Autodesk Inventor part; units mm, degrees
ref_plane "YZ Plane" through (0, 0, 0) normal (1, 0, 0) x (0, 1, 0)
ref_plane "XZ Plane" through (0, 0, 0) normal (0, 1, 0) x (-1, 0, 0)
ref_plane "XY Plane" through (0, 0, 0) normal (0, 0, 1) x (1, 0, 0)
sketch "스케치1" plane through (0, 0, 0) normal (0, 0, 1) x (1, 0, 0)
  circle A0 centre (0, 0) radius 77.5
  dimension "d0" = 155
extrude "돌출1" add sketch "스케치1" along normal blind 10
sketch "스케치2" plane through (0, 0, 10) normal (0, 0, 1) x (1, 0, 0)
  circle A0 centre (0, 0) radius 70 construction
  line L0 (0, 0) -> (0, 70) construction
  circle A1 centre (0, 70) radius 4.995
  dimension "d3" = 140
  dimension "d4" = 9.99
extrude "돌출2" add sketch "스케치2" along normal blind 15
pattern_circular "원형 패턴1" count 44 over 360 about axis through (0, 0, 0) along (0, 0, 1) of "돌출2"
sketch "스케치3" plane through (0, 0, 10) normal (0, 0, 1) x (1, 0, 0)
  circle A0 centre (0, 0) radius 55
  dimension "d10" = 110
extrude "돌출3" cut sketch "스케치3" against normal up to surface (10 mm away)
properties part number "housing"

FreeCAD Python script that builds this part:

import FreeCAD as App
import Part
import Sketcher
from FreeCAD import Vector

doc = App.newDocument("Part")
body = doc.addObject("PartDesign::Body", "Body")

sketch1 = body.newObject("Sketcher::SketchObject", "Sketch")
sketch1.AttachmentSupport = (doc.getObject("XY_Plane"), [""])
sketch1.MapMode = "FlatFace"
sketch1.addGeometry(Part.Circle(Vector(0, 0, 0), Vector(0, 0, 1), 77.5), False)
sketch1.addConstraint([
    Sketcher.Constraint("Coincident", 0, 3, -1, 1),
    Sketcher.Constraint("Diameter", 0, 155.0),
])
pad1 = body.newObject("PartDesign::Pad", "Pad")
pad1.Profile = sketch1
pad1.Length = 10

sketch2 = body.newObject("Sketcher::SketchObject", "Sketch001")
sketch2.AttachmentSupport = (doc.getObject("XY_Plane"), [""])
sketch2.MapMode = "FlatFace"
sketch2.AttachmentOffset = App.Placement(Vector(0, 0, 10), App.Rotation())
sketch2.addGeometry(Part.Circle(Vector(0, 70, 0), Vector(0, 0, 1), 4.995), False)
sketch2.addConstraint([
    Sketcher.Constraint("PointOnObject", 0, 3, -2),
    Sketcher.Constraint("Diameter", 0, 9.99),
    Sketcher.Constraint("DistanceY", -1, 1, 0, 3, 70.0),
])
pad2 = body.newObject("PartDesign::Pad", "Pad001")
pad2.Profile = sketch2
pad2.Length = 15
doc.recompute()

polarpattern = body.newObject("PartDesign::PolarPattern", "PolarPattern")
polarpattern.Originals = [pad2]
polarpattern.Axis = (doc.getObject("Z_Axis"), [""])
polarpattern.Angle = 360
polarpattern.Occurrences = 44
body.Tip = polarpattern

sketch3 = body.newObject("Sketcher::SketchObject", "Sketch002")
sketch3.AttachmentSupport = (doc.getObject("XY_Plane"), [""])
sketch3.MapMode = "FlatFace"
sketch3.AttachmentOffset = App.Placement(Vector(0, 0, 10), App.Rotation())
sketch3.addGeometry(Part.Circle(Vector(0, 0, 0), Vector(0, 0, 1), 55), False)
sketch3.addConstraint([
    Sketcher.Constraint("Coincident", 0, 3, -1, 1),
    Sketcher.Constraint("Diameter", 0, 110.0),
])
pocket1 = body.newObject("PartDesign::Pocket", "Pocket")
pocket1.Profile = sketch3
pocket1.Length = 10

doc.recompute()
